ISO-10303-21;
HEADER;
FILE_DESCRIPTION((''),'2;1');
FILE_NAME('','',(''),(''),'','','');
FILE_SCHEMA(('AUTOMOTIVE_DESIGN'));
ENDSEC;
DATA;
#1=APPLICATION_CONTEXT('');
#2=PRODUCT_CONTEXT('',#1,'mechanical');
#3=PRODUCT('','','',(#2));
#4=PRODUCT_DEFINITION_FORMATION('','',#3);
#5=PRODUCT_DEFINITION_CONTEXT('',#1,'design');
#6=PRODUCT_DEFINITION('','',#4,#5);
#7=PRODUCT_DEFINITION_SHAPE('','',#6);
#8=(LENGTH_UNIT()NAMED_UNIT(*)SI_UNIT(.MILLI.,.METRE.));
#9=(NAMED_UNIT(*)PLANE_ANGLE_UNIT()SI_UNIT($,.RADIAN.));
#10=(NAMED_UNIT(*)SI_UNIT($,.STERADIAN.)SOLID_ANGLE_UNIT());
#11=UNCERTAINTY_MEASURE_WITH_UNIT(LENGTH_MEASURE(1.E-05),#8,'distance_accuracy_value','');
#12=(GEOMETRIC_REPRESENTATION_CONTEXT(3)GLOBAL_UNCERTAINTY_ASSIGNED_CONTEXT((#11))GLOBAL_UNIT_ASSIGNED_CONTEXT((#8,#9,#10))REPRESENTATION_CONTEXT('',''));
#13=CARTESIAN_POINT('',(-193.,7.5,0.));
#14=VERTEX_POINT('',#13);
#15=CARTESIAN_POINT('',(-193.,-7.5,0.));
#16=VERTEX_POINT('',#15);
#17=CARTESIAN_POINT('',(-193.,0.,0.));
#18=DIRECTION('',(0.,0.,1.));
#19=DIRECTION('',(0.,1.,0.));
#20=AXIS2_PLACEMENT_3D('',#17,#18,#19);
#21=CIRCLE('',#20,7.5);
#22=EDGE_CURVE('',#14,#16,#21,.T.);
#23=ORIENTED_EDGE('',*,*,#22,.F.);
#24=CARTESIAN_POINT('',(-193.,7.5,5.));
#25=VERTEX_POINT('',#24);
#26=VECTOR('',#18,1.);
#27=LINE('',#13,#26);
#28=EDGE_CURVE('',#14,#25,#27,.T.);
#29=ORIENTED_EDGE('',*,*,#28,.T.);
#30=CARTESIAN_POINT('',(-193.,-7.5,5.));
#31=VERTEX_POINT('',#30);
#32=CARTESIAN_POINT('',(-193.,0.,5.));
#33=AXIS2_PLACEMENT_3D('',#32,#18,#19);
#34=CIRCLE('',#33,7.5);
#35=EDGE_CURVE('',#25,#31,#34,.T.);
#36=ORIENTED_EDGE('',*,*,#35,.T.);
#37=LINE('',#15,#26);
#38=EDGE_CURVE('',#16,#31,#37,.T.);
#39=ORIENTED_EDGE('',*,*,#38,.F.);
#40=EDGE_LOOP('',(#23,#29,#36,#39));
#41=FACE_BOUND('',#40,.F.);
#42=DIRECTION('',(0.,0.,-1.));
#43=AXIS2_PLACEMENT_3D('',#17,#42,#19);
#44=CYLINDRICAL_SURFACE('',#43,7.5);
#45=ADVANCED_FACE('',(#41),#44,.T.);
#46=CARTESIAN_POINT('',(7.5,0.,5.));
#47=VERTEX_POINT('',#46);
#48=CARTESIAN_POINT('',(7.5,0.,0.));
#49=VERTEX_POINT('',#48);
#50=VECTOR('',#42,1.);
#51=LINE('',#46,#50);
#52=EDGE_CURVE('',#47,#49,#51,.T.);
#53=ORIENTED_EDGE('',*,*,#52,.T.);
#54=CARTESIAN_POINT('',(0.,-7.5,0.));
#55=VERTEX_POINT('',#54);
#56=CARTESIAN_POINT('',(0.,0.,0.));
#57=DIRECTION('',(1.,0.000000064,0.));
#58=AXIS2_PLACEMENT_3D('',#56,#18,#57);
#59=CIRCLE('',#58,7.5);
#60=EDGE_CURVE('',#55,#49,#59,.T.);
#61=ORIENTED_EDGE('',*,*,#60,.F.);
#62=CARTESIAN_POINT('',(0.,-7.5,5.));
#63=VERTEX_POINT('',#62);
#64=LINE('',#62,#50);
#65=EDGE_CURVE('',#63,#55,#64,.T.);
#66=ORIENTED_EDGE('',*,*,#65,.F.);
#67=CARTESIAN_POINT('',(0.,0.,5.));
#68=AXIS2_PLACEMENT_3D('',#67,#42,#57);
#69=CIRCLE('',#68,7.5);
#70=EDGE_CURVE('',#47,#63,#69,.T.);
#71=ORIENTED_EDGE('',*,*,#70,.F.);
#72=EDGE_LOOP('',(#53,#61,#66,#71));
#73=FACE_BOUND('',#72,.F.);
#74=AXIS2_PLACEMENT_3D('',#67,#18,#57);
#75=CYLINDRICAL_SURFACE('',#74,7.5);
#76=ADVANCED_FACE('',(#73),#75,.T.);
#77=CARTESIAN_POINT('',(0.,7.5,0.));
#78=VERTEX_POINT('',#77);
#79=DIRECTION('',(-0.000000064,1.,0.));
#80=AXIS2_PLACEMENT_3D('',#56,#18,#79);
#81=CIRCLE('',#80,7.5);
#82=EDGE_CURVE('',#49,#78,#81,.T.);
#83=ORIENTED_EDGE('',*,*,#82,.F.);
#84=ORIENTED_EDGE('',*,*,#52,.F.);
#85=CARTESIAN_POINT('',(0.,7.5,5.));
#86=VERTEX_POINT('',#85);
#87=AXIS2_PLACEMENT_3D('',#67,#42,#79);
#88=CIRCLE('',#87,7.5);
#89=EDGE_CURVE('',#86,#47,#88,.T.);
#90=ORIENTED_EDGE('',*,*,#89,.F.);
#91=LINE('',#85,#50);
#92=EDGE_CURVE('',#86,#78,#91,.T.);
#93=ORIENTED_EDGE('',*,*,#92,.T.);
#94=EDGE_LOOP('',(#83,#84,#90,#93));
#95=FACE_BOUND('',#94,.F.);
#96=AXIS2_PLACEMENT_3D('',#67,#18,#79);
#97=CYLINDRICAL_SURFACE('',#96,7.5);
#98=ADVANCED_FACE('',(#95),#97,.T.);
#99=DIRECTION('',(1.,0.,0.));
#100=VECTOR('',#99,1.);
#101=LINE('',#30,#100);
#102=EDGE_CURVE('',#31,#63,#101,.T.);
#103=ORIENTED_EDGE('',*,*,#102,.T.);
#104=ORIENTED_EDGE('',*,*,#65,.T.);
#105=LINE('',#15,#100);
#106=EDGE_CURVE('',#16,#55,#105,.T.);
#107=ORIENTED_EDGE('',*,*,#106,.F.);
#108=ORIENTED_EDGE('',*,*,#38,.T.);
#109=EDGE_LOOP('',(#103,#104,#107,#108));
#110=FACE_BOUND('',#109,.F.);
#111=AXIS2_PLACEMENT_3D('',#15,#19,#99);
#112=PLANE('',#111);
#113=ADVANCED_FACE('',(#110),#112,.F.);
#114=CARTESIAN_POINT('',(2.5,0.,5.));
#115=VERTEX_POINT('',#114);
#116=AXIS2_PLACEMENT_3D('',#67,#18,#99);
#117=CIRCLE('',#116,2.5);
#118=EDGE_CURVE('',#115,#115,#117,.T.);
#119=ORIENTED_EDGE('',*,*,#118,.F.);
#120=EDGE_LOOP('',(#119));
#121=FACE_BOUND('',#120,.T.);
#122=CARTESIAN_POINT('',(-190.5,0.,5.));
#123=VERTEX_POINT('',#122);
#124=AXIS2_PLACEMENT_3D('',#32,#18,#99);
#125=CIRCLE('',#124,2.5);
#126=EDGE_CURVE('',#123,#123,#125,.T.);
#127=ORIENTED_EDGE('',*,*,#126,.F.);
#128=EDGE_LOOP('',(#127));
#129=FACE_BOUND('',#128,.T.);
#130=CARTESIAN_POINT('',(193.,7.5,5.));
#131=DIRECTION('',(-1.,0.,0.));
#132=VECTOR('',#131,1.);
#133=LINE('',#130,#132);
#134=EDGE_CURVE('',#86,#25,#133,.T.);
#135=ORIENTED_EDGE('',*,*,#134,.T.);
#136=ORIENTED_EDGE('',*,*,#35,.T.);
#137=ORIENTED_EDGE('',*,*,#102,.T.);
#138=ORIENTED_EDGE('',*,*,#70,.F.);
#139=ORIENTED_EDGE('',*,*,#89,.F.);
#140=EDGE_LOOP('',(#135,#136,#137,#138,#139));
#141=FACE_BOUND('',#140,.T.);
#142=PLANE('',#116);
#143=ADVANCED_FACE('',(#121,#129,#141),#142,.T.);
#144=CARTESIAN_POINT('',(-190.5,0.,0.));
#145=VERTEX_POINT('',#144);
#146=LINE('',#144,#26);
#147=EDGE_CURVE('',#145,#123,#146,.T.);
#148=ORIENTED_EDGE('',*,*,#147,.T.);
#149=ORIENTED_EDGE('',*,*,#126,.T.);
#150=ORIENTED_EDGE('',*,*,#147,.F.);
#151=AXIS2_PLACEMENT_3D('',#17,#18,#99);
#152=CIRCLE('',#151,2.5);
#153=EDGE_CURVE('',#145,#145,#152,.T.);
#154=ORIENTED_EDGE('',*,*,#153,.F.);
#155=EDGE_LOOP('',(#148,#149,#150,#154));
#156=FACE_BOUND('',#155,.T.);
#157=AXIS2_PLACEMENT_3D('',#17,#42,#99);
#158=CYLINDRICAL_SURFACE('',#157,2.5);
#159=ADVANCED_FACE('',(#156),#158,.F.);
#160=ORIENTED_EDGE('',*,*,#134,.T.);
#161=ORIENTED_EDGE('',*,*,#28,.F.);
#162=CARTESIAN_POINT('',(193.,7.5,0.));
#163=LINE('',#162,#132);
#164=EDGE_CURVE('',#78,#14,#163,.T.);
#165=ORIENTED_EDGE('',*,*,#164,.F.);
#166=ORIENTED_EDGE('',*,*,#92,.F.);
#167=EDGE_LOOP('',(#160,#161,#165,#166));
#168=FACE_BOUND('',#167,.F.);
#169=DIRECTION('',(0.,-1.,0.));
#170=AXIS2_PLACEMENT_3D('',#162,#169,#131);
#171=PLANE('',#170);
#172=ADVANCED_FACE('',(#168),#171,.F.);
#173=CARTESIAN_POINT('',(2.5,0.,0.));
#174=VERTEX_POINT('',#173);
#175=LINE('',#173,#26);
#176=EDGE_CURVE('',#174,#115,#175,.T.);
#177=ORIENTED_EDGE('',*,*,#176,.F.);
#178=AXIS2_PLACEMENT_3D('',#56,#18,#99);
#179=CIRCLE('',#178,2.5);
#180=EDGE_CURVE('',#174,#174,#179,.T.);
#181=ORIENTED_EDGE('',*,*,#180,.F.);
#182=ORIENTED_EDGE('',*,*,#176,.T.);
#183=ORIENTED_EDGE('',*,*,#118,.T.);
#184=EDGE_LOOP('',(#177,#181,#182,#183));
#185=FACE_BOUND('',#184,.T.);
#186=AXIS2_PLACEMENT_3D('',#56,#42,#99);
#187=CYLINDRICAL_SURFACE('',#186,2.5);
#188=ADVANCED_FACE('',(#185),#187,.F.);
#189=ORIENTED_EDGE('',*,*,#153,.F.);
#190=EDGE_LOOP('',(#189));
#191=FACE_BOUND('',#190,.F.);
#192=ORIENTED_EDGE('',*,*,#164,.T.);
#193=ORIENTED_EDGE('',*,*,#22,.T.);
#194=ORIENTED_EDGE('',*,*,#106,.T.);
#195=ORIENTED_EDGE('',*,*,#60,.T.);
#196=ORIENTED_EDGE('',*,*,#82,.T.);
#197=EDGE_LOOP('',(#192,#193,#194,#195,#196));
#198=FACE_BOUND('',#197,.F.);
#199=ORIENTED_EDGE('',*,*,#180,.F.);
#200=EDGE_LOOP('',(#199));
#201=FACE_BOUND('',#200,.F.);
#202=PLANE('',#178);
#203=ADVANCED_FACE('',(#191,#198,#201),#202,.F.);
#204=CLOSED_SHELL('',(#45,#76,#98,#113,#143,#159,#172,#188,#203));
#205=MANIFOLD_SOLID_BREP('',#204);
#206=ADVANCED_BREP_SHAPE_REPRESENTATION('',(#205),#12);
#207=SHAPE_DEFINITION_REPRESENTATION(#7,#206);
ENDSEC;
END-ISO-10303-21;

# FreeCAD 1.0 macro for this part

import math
import FreeCAD as App
import Part
import Sketcher

doc = App.newDocument("Part")
body = doc.addObject("PartDesign::Body", "Body")

sketch1 = body.newObject("Sketcher::SketchObject", "Sketch")
sketch1.AttachmentSupport = (doc.getObject("XY_Plane"), [""])
sketch1.MapMode = "FlatFace"
sketch1.addGeometry([
    Part.ArcOfCircle(Part.Circle(App.Vector(193, 0, 0), App.Vector(0, 0, 1), 7.5), math.radians(-90), math.radians(90)),
    Part.LineSegment(App.Vector(193, 7.5, 0), App.Vector(-193, 7.5, 0)),
    Part.ArcOfCircle(Part.Circle(App.Vector(-193, 0, 0), App.Vector(0, 0, 1), 7.5), math.radians(90), math.radians(270)),
    Part.LineSegment(App.Vector(-193, -7.5, 0), App.Vector(193, -7.5, 0)),
    Part.Circle(App.Vector(-193, 0, 0), App.Vector(0, 0, 1), 2.5),
    Part.Circle(App.Vector(0, 0, 0), App.Vector(0, 0, 1), 2.5),
    Part.Circle(App.Vector(193, 0, 0), App.Vector(0, 0, 1), 2.5),
], False)
sketch1.addConstraint([
    Sketcher.Constraint("Tangent", 0, 2, 1, 1),
    Sketcher.Constraint("Tangent", 1, 2, 2, 1),
    Sketcher.Constraint("Tangent", 2, 2, 3, 1),
    Sketcher.Constraint("Tangent", 3, 2, 0, 1),
    Sketcher.Constraint("Horizontal", 1),
    Sketcher.Constraint("Horizontal", 3),
    Sketcher.Constraint("Coincident", 5, 3, -1, 1),
    Sketcher.Constraint("Coincident", 4, 3, 2, 3),
    Sketcher.Constraint("Coincident", 6, 3, 0, 3),
    Sketcher.Constraint("Equal", 4, 5),
    Sketcher.Constraint("Equal", 5, 6),
    Sketcher.Constraint("Symmetric", 0, 3, 2, 3, -1, 1),
    Sketcher.Constraint("Diameter", 4, 5.0),
    Sketcher.Constraint("Radius", 0, 7.5),
    Sketcher.Constraint("DistanceX", 1, 2, 1, 1, 386.0),
])
pad1 = body.newObject("PartDesign::Pad", "Pad")
pad1.Profile = sketch1
pad1.Length = 5

sketch2 = body.newObject("Sketcher::SketchObject", "Sketch001")
sketch2.AttachmentSupport = (doc.getObject("XY_Plane"), [""])
sketch2.MapMode = "FlatFace"
sketch2.AttachmentOffset = App.Placement(App.Vector(0, 0, 5), App.Rotation())
sketch2.addGeometry([
    Part.Circle(App.Vector(0, 0, 0), App.Vector(0, 0, 1), 2.5),
    Part.ArcOfCircle(Part.Circle(App.Vector(0, 0, 0), App.Vector(0, 0, 1), 7.5), math.radians(0), math.radians(90)),
    Part.ArcOfCircle(Part.Circle(App.Vector(0, 0, 0), App.Vector(0, 0, 1), 7.5), math.radians(-90), math.radians(0)),
    Part.LineSegment(App.Vector(0, -7.5, 0), App.Vector(193, -7.5, 0)),
    Part.ArcOfCircle(Part.Circle(App.Vector(193, 0, 0), App.Vector(0, 0, 1), 7.5), math.radians(-90), math.radians(90)),
    Part.LineSegment(App.Vector(193, 7.5, 0), App.Vector(0, 7.5, 0)),
    Part.Circle(App.Vector(193, 0, 0), App.Vector(0, 0, 1), 2.5),
], False)
sketch2.addConstraint([
    Sketcher.Constraint("Tangent", 1, 1, 2, 2),
    Sketcher.Constraint("Tangent", 2, 1, 3, 1),
    Sketcher.Constraint("Tangent", 3, 2, 4, 1),
    Sketcher.Constraint("Tangent", 4, 2, 5, 1),
    Sketcher.Constraint("Tangent", 5, 2, 1, 2),
    Sketcher.Constraint("Horizontal", 3),
    Sketcher.Constraint("Horizontal", 5),
    Sketcher.Constraint("Coincident", 0, 3, -1, 1),
    Sketcher.Constraint("Coincident", 1, 3, -1, 1),
    Sketcher.Constraint("Coincident", 6, 3, 4, 3),
    Sketcher.Constraint("Equal", 1, 2),
    Sketcher.Constraint("Equal", 0, 6),
    Sketcher.Constraint("PointOnObject", 1, 1, -1),
    Sketcher.Constraint("Diameter", 0, 5.0),
    Sketcher.Constraint("Radius", 1, 7.5),
    Sketcher.Constraint("DistanceX", 3, 1, 3, 2, 193.0),
])
pocket1 = body.newObject("PartDesign::Pocket", "Pocket")
pocket1.Profile = sketch2
pocket1.Length = 25

doc.recompute()
